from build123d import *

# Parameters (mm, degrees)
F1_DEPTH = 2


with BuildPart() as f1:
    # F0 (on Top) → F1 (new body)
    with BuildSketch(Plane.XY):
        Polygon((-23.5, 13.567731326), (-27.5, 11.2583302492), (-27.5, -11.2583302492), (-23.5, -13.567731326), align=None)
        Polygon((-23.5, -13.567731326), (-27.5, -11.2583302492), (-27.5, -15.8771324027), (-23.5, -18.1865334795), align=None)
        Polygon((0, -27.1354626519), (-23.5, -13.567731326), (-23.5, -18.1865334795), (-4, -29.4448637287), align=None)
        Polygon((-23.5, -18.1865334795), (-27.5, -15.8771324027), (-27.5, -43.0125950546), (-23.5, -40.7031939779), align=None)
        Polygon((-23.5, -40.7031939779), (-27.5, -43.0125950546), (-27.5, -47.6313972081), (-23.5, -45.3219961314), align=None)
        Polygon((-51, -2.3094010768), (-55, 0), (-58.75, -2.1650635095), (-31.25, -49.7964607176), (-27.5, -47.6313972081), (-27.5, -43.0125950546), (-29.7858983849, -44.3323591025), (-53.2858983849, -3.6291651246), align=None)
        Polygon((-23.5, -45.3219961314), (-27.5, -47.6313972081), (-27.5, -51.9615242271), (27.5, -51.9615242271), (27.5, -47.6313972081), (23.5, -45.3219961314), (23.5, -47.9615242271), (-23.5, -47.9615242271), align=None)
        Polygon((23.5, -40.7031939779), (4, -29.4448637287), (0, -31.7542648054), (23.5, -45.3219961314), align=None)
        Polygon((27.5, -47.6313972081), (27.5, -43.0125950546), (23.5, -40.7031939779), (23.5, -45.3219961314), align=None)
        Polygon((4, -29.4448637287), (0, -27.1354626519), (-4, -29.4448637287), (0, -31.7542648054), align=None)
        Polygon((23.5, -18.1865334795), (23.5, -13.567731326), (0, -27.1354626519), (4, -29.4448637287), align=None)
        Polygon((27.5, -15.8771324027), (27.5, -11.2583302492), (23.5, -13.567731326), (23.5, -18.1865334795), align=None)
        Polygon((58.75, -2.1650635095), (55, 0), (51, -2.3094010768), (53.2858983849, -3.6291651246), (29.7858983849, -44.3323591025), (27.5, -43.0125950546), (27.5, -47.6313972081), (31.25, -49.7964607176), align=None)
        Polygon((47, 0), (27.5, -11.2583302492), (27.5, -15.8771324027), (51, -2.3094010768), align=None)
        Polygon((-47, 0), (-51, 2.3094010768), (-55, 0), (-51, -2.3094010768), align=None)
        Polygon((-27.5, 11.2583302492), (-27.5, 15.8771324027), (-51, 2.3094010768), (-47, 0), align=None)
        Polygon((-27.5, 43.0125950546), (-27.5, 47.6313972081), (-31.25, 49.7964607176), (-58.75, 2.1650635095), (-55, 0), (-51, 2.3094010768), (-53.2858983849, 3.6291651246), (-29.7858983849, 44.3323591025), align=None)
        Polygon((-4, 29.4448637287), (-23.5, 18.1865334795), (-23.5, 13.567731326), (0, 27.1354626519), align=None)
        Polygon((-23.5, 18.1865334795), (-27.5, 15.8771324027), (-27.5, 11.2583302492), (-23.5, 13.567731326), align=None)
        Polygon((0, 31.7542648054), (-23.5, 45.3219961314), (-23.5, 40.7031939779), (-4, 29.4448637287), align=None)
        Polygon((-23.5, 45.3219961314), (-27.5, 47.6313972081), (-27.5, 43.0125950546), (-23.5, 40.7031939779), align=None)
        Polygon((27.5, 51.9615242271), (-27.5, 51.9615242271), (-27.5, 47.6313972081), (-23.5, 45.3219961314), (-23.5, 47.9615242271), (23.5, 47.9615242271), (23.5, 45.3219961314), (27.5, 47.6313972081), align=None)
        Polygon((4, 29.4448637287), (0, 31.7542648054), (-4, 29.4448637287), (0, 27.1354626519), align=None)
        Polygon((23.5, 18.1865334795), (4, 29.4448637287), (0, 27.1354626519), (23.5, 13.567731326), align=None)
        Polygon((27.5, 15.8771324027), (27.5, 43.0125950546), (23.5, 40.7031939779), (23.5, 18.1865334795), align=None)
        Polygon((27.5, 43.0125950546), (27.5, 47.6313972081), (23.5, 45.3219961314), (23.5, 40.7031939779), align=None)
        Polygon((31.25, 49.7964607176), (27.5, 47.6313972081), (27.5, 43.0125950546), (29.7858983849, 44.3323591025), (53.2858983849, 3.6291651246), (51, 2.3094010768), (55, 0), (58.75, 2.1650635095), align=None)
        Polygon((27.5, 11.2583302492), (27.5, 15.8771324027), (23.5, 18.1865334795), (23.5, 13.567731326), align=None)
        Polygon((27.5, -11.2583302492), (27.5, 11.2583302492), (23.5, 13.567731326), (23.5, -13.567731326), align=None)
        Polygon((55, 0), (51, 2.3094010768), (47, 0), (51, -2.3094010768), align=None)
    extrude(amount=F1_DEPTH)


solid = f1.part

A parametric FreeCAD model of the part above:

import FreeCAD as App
import Part
import Sketcher

doc = App.newDocument("Part")
body = doc.addObject("PartDesign::Body", "Body")

# Sketch on XY plane
sketch1 = body.newObject("Sketcher::SketchObject", "Sketch")
sketch1.AttachmentSupport = (doc.getObject("XY_Plane"), [""])
sketch1.MapMode = "FlatFace"
sketch1.addGeometry(Part.LineSegment(App.Vector(58.8, -2.2, 0), App.Vector(55, 0, 0)), False)
sketch1.addGeometry(Part.LineSegment(App.Vector(55, 0, 0), App.Vector(58.8, 2.2, 0)), False)
sketch1.addGeometry(Part.LineSegment(App.Vector(58.8, 2.2, 0), App.Vector(31.2, 49.8, 0)), False)
sketch1.addGeometry(Part.LineSegment(App.Vector(31.2, 49.8, 0), App.Vector(27.5, 47.6, 0)), False)
sketch1.addGeometry(Part.LineSegment(App.Vector(27.5, 47.6, 0), App.Vector(27.5, 52, 0)), False)
sketch1.addGeometry(Part.LineSegment(App.Vector(27.5, 52, 0), App.Vector(-27.5, 52, 0)), False)
sketch1.addGeometry(Part.LineSegment(App.Vector(-27.5, 52, 0), App.Vector(-27.5, 47.6, 0)), False)
sketch1.addGeometry(Part.LineSegment(App.Vector(-27.5, 47.6, 0), App.Vector(-31.2, 49.8, 0)), False)
sketch1.addGeometry(Part.LineSegment(App.Vector(-31.2, 49.8, 0), App.Vector(-58.8, 2.2, 0)), False)
sketch1.addGeometry(Part.LineSegment(App.Vector(-58.8, 2.2, 0), App.Vector(-55, 0, 0)), False)
sketch1.addGeometry(Part.LineSegment(App.Vector(-55, 0, 0), App.Vector(-58.8, -2.2, 0)), False)
sketch1.addGeometry(Part.LineSegment(App.Vector(-58.8, -2.2, 0), App.Vector(-31.2, -49.8, 0)), False)
sketch1.addGeometry(Part.LineSegment(App.Vector(-31.2, -49.8, 0), App.Vector(-27.5, -47.6, 0)), False)
sketch1.addGeometry(Part.LineSegment(App.Vector(-27.5, -47.6, 0), App.Vector(-27.5, -52, 0)), False)
sketch1.addGeometry(Part.LineSegment(App.Vector(-27.5, -52, 0), App.Vector(27.5, -52, 0)), False)
sketch1.addGeometry(Part.LineSegment(App.Vector(27.5, -52, 0), App.Vector(27.5, -47.6, 0)), False)
sketch1.addGeometry(Part.LineSegment(App.Vector(27.5, -47.6, 0), App.Vector(31.2, -49.8, 0)), False)
sketch1.addGeometry(Part.LineSegment(App.Vector(31.2, -49.8, 0), App.Vector(58.8, -2.2, 0)), False)
sketch1.addGeometry(Part.LineSegment(App.Vector(0, -31.8, 0), App.Vector(23.5, -45.3, 0)), False)
sketch1.addGeometry(Part.LineSegment(App.Vector(23.5, -45.3, 0), App.Vector(23.5, -48, 0)), False)
sketch1.addGeometry(Part.LineSegment(App.Vector(23.5, -48, 0), App.Vector(-23.5, -48, 0)), False)
sketch1.addGeometry(Part.LineSegment(App.Vector(-23.5, -48, 0), App.Vector(-23.5, -18.2, 0)), False)
sketch1.addGeometry(Part.LineSegment(App.Vector(-23.5, -18.2, 0), App.Vector(-4, -29.4, 0)), False)
sketch1.addGeometry(Part.LineSegment(App.Vector(-4, -29.4, 0), App.Vector(0, -31.8, 0)), False)
sketch1.addGeometry(Part.LineSegment(App.Vector(-47, 0, 0), App.Vector(-27.5, 11.3, 0)), False)
sketch1.addGeometry(Part.LineSegment(App.Vector(-27.5, 11.3, 0), App.Vector(-27.5, -43, 0)), False)
sketch1.addGeometry(Part.LineSegment(App.Vector(-27.5, -43, 0), App.Vector(-29.8, -44.3, 0)), False)
sketch1.addGeometry(Part.LineSegment(App.Vector(-29.8, -44.3, 0), App.Vector(-53.3, -3.6, 0)), False)
sketch1.addGeometry(Part.LineSegment(App.Vector(-53.3, -3.6, 0), App.Vector(-51, -2.3, 0)), False)
sketch1.addGeometry(Part.LineSegment(App.Vector(-51, -2.3, 0), App.Vector(-47, 0, 0)), False)
sketch1.addGeometry(Part.LineSegment(App.Vector(27.5, -15.9, 0), App.Vector(51, -2.3, 0)), False)
sketch1.addGeometry(Part.LineSegment(App.Vector(51, -2.3, 0), App.Vector(53.3, -3.6, 0)), False)
sketch1.addGeometry(Part.LineSegment(App.Vector(53.3, -3.6, 0), App.Vector(29.8, -44.3, 0)), False)
sketch1.addGeometry(Part.LineSegment(App.Vector(29.8, -44.3, 0), App.Vector(27.5, -43, 0)), False)
sketch1.addGeometry(Part.LineSegment(App.Vector(27.5, -43, 0), App.Vector(23.5, -40.7, 0)), False)
sketch1.addGeometry(Part.LineSegment(App.Vector(23.5, -40.7, 0), App.Vector(4, -29.4, 0)), False)
sketch1.addGeometry(Part.LineSegment(App.Vector(4, -29.4, 0), App.Vector(23.5, -18.2, 0)), False)
sketch1.addGeometry(Part.LineSegment(App.Vector(23.5, -18.2, 0), App.Vector(27.5, -15.9, 0)), False)
sketch1.addGeometry(Part.LineSegment(App.Vector(-23.5, 40.7, 0), App.Vector(-4, 29.4, 0)), False)
sketch1.addGeometry(Part.LineSegment(App.Vector(-4, 29.4, 0), App.Vector(-23.5, 18.2, 0)), False)
sketch1.addGeometry(Part.LineSegment(App.Vector(-23.5, 18.2, 0), App.Vector(-27.5, 15.9, 0)), False)
sketch1.addGeometry(Part.LineSegment(App.Vector(-27.5, 15.9, 0), App.Vector(-51, 2.3, 0)), False)
sketch1.addGeometry(Part.LineSegment(App.Vector(-51, 2.3, 0), App.Vector(-53.3, 3.6, 0)), False)
sketch1.addGeometry(Part.LineSegment(App.Vector(-53.3, 3.6, 0), App.Vector(-29.8, 44.3, 0)), False)
sketch1.addGeometry(Part.LineSegment(App.Vector(-29.8, 44.3, 0), App.Vector(-27.5, 43, 0)), False)
sketch1.addGeometry(Part.LineSegment(App.Vector(-27.5, 43, 0), App.Vector(-23.5, 40.7, 0)), False)
sketch1.addGeometry(Part.LineSegment(App.Vector(0, 27.1, 0), App.Vector(23.5, 13.6, 0)), False)
sketch1.addGeometry(Part.LineSegment(App.Vector(23.5, 13.6, 0), App.Vector(23.5, -13.6, 0)), False)
sketch1.addGeometry(Part.LineSegment(App.Vector(23.5, -13.6, 0), App.Vector(0, -27.1, 0)), False)
sketch1.addGeometry(Part.LineSegment(App.Vector(0, -27.1, 0), App.Vector(-23.5, -13.6, 0)), False)
sketch1.addGeometry(Part.LineSegment(App.Vector(-23.5, -13.6, 0), App.Vector(-23.5, 13.6, 0)), False)
sketch1.addGeometry(Part.LineSegment(App.Vector(-23.5, 13.6, 0), App.Vector(0, 27.1, 0)), False)
sketch1.addGeometry(Part.LineSegment(App.Vector(23.5, 48, 0), App.Vector(23.5, 18.2, 0)), False)
sketch1.addGeometry(Part.LineSegment(App.Vector(23.5, 18.2, 0), App.Vector(4, 29.4, 0)), False)
sketch1.addGeometry(Part.LineSegment(App.Vector(4, 29.4, 0), App.Vector(0, 31.8, 0)), False)
sketch1.addGeometry(Part.LineSegment(App.Vector(0, 31.8, 0), App.Vector(-23.5, 45.3, 0)), False)
sketch1.addGeometry(Part.LineSegment(App.Vector(-23.5, 45.3, 0), App.Vector(-23.5, 48, 0)), False)
sketch1.addGeometry(Part.LineSegment(App.Vector(-23.5, 48, 0), App.Vector(23.5, 48, 0)), False)
sketch1.addGeometry(Part.LineSegment(App.Vector(53.3, 3.6, 0), App.Vector(51, 2.3, 0)), False)
sketch1.addGeometry(Part.LineSegment(App.Vector(51, 2.3, 0), App.Vector(47, 0, 0)), False)
sketch1.addGeometry(Part.LineSegment(App.Vector(47, 0, 0), App.Vector(27.5, -11.3, 0)), False)
sketch1.addGeometry(Part.LineSegment(App.Vector(27.5, -11.3, 0), App.Vector(27.5, 43, 0)), False)
sketch1.addGeometry(Part.LineSegment(App.Vector(27.5, 43, 0), App.Vector(29.8, 44.3, 0)), False)
sketch1.addGeometry(Part.LineSegment(App.Vector(29.8, 44.3, 0), App.Vector(53.3, 3.6, 0)), False)
sketch1.addConstraint(Sketcher.Constraint("Coincident", 0, 2, 1, 1))
sketch1.addConstraint(Sketcher.Constraint("Coincident", 1, 2, 2, 1))
sketch1.addConstraint(Sketcher.Constraint("Coincident", 2, 2, 3, 1))
sketch1.addConstraint(Sketcher.Constraint("Coincident", 3, 2, 4, 1))
sketch1.addConstraint(Sketcher.Constraint("Coincident", 4, 2, 5, 1))
sketch1.addConstraint(Sketcher.Constraint("Coincident", 5, 2, 6, 1))
sketch1.addConstraint(Sketcher.Constraint("Coincident", 6, 2, 7, 1))
sketch1.addConstraint(Sketcher.Constraint("Coincident", 7, 2, 8, 1))
sketch1.addConstraint(Sketcher.Constraint("Coincident", 8, 2, 9, 1))
sketch1.addConstraint(Sketcher.Constraint("Coincident", 9, 2, 10, 1))
sketch1.addConstraint(Sketcher.Constraint("Coincident", 10, 2, 11, 1))
sketch1.addConstraint(Sketcher.Constraint("Coincident", 11, 2, 12, 1))
sketch1.addConstraint(Sketcher.Constraint("Coincident", 12, 2, 13, 1))
sketch1.addConstraint(Sketcher.Constraint("Coincident", 13, 2, 14, 1))
sketch1.addConstraint(Sketcher.Constraint("Coincident", 14, 2, 15, 1))
sketch1.addConstraint(Sketcher.Constraint("Coincident", 15, 2, 16, 1))
sketch1.addConstraint(Sketcher.Constraint("Coincident", 16, 2, 17, 1))
sketch1.addConstraint(Sketcher.Constraint("Coincident", 17, 2, 0, 1))
sketch1.addConstraint(Sketcher.Constraint("Coincident", 18, 2, 19, 1))
sketch1.addConstraint(Sketcher.Constraint("Coincident", 19, 2, 20, 1))
sketch1.addConstraint(Sketcher.Constraint("Coincident", 20, 2, 21, 1))
sketch1.addConstraint(Sketcher.Constraint("Coincident", 21, 2, 22, 1))
sketch1.addConstraint(Sketcher.Constraint("Coincident", 22, 2, 23, 1))
sketch1.addConstraint(Sketcher.Constraint("Coincident", 23, 2, 18, 1))
sketch1.addConstraint(Sketcher.Constraint("Coincident", 24, 2, 25, 1))
sketch1.addConstraint(Sketcher.Constraint("Coincident", 25, 2, 26, 1))
sketch1.addConstraint(Sketcher.Constraint("Coincident", 26, 2, 27, 1))
sketch1.addConstraint(Sketcher.Constraint("Coincident", 27, 2, 28, 1))
sketch1.addConstraint(Sketcher.Constraint("Coincident", 28, 2, 29, 1))
sketch1.addConstraint(Sketcher.Constraint("Coincident", 29, 2, 24, 1))
sketch1.addConstraint(Sketcher.Constraint("Coincident", 30, 2, 31, 1))
sketch1.addConstraint(Sketcher.Constraint("Coincident", 31, 2, 32, 1))
sketch1.addConstraint(Sketcher.Constraint("Coincident", 32, 2, 33, 1))
sketch1.addConstraint(Sketcher.Constraint("Coincident", 33, 2, 34, 1))
sketch1.addConstraint(Sketcher.Constraint("Coincident", 34, 2, 35, 1))
sketch1.addConstraint(Sketcher.Constraint("Coincident", 35, 2, 36, 1))
sketch1.addConstraint(Sketcher.Constraint("Coincident", 36, 2, 37, 1))
sketch1.addConstraint(Sketcher.Constraint("Coincident", 37, 2, 30, 1))
sketch1.addConstraint(Sketcher.Constraint("Coincident", 38, 2, 39, 1))
sketch1.addConstraint(Sketcher.Constraint("Coincident", 39, 2, 40, 1))
sketch1.addConstraint(Sketcher.Constraint("Coincident", 40, 2, 41, 1))
sketch1.addConstraint(Sketcher.Constraint("Coincident", 41, 2, 42, 1))
sketch1.addConstraint(Sketcher.Constraint("Coincident", 42, 2, 43, 1))
sketch1.addConstraint(Sketcher.Constraint("Coincident", 43, 2, 44, 1))
sketch1.addConstraint(Sketcher.Constraint("Coincident", 44, 2, 45, 1))
sketch1.addConstraint(Sketcher.Constraint("Coincident", 45, 2, 38, 1))
sketch1.addConstraint(Sketcher.Constraint("Coincident", 46, 2, 47, 1))
sketch1.addConstraint(Sketcher.Constraint("Coincident", 47, 2, 48, 1))
sketch1.addConstraint(Sketcher.Constraint("Coincident", 48, 2, 49, 1))
sketch1.addConstraint(Sketcher.Constraint("Coincident", 49, 2, 50, 1))
sketch1.addConstraint(Sketcher.Constraint("Coincident", 50, 2, 51, 1))
sketch1.addConstraint(Sketcher.Constraint("Coincident", 51, 2, 46, 1))
sketch1.addConstraint(Sketcher.Constraint("Coincident", 52, 2, 53, 1))
sketch1.addConstraint(Sketcher.Constraint("Coincident", 53, 2, 54, 1))
sketch1.addConstraint(Sketcher.Constraint("Coincident", 54, 2, 55, 1))
sketch1.addConstraint(Sketcher.Constraint("Coincident", 55, 2, 56, 1))
sketch1.addConstraint(Sketcher.Constraint("Coincident", 56, 2, 57, 1))
sketch1.addConstraint(Sketcher.Constraint("Coincident", 57, 2, 52, 1))
sketch1.addConstraint(Sketcher.Constraint("Coincident", 58, 2, 59, 1))
sketch1.addConstraint(Sketcher.Constraint("Coincident", 59, 2, 60, 1))
sketch1.addConstraint(Sketcher.Constraint("Coincident", 60, 2, 61, 1))
sketch1.addConstraint(Sketcher.Constraint("Coincident", 61, 2, 62, 1))
sketch1.addConstraint(Sketcher.Constraint("Coincident", 62, 2, 63, 1))
sketch1.addConstraint(Sketcher.Constraint("Coincident", 63, 2, 58, 1))
sketch1.addConstraint(Sketcher.Constraint("Vertical", 4))
sketch1.addConstraint(Sketcher.Constraint("Horizontal", 5))
sketch1.addConstraint(Sketcher.Constraint("Vertical", 6))
sketch1.addConstraint(Sketcher.Constraint("Vertical", 13))
sketch1.addConstraint(Sketcher.Constraint("Horizontal", 14))
sketch1.addConstraint(Sketcher.Constraint("Vertical", 15))
sketch1.addConstraint(Sketcher.Constraint("Vertical", 19))
sketch1.addConstraint(Sketcher.Constraint("Horizontal", 20))
sketch1.addConstraint(Sketcher.Constraint("Vertical", 21))
sketch1.addConstraint(Sketcher.Constraint("Vertical", 25))
sketch1.addConstraint(Sketcher.Constraint("Vertical", 47))
sketch1.addConstraint(Sketcher.Constraint("Vertical", 50))
sketch1.addConstraint(Sketcher.Constraint("Vertical", 52))
sketch1.addConstraint(Sketcher.Constraint("Vertical", 56))
sketch1.addConstraint(Sketcher.Constraint("Horizontal", 57))
sketch1.addConstraint(Sketcher.Constraint("Vertical", 61))
sketch1.addConstraint(Sketcher.Constraint("Symmetric", 0, 2, 9, 2, -1, 1))
sketch1.addConstraint(Sketcher.Constraint("Symmetric", 1, 2, 10, 2, -1, 1))
sketch1.addConstraint(Sketcher.Constraint("Symmetric", 2, 2, 11, 2, -1, 1))
sketch1.addConstraint(Sketcher.Constraint("Symmetric", 3, 2, 12, 2, -1, 1))
sketch1.addConstraint(Sketcher.Constraint("Symmetric", 5, 2, 14, 2, -1, 1))
sketch1.addConstraint(Sketcher.Constraint("Symmetric", 7, 2, 16, 2, -1, 1))
sketch1.addConstraint(Sketcher.Constraint("Symmetric", 8, 2, 17, 2, -1, 1))
sketch1.addConstraint(Sketcher.Constraint("Symmetric", 35, 2, 38, 2, -1, 1))
sketch1.addConstraint(Sketcher.Constraint("Symmetric", 36, 2, 39, 2, -1, 1))
sketch1.addConstraint(Sketcher.Constraint("Symmetric", 37, 2, 40, 2, -1, 1))
sketch1.addConstraint(Sketcher.Constraint("Symmetric", 30, 2, 41, 2, -1, 1))
sketch1.addConstraint(Sketcher.Constraint("Symmetric", 31, 2, 42, 2, -1, 1))
sketch1.addConstraint(Sketcher.Constraint("Symmetric", 32, 2, 43, 2, -1, 1))
sketch1.addConstraint(Sketcher.Constraint("Symmetric", 33, 2, 44, 2, -1, 1))
sketch1.addConstraint(Sketcher.Constraint("Symmetric", 34, 2, 45, 2, -1, 1))
sketch1.addConstraint(Sketcher.Constraint("Symmetric", 46, 2, 49, 2, -1, 1))
sketch1.addConstraint(Sketcher.Constraint("Symmetric", 48, 2, 51, 2, -1, 1))
sketch1.addConstraint(Sketcher.Constraint("Symmetric", 21, 2, 52, 2, -1, 1))
sketch1.addConstraint(Sketcher.Constraint("Symmetric", 22, 2, 53, 2, -1, 1))
sketch1.addConstraint(Sketcher.Constraint("Symmetric", 23, 2, 54, 2, -1, 1))
sketch1.addConstraint(Sketcher.Constraint("Symmetric", 18, 2, 55, 2, -1, 1))
sketch1.addConstraint(Sketcher.Constraint("Symmetric", 28, 2, 58, 2, -1, 1))
sketch1.addConstraint(Sketcher.Constraint("Symmetric", 29, 2, 59, 2, -1, 1))
sketch1.addConstraint(Sketcher.Constraint("Symmetric", 24, 2, 60, 2, -1, 1))
sketch1.addConstraint(Sketcher.Constraint("Symmetric", 26, 2, 62, 2, -1, 1))
sketch1.addConstraint(Sketcher.Constraint("Symmetric", 27, 2, 63, 2, -1, 1))
sketch1.addConstraint(Sketcher.Constraint("Symmetric", 3, 2, 6, 2, -2))
sketch1.addConstraint(Sketcher.Constraint("Symmetric", 2, 2, 7, 2, -2))
sketch1.addConstraint(Sketcher.Constraint("Symmetric", 1, 2, 8, 2, -2))
sketch1.addConstraint(Sketcher.Constraint("Symmetric", 28, 2, 30, 2, -2))
sketch1.addConstraint(Sketcher.Constraint("Symmetric", 27, 2, 31, 2, -2))
sketch1.addConstraint(Sketcher.Constraint("Symmetric", 26, 2, 32, 2, -2))
sketch1.addConstraint(Sketcher.Constraint("Symmetric", 25, 2, 33, 2, -2))
sketch1.addConstraint(Sketcher.Constraint("Symmetric", 22, 2, 35, 2, -2))
sketch1.addConstraint(Sketcher.Constraint("Symmetric", 21, 2, 36, 2, -2))
sketch1.addConstraint(Sketcher.Constraint("Symmetric", 20, 2, 56, 2, -1))
sketch1.addConstraint(Sketcher.Constraint("PointOnObject", 0, 2, -1))
sketch1.addConstraint(Sketcher.Constraint("PointOnObject", 23, 2, -2))
sketch1.addConstraint(Sketcher.Constraint("PointOnObject", 29, 2, -1))
sketch1.addConstraint(Sketcher.Constraint("PointOnObject", 48, 2, -2))
sketch1.addConstraint(Sketcher.Constraint("Perpendicular", 1, 2))
sketch1.addConstraint(Sketcher.Constraint("Perpendicular", 2, 3))
sketch1.addConstraint(Sketcher.Constraint("Parallel", 9, 16))
sketch1.addConstraint(Sketcher.Constraint("Perpendicular", 17, 18))
sketch1.addConstraint(Sketcher.Constraint("Parallel", 18, 22))
sketch1.addConstraint(Sketcher.Constraint("Parallel", 22, 23))
sketch1.addConstraint(Sketcher.Constraint("Parallel", 12, 24))
sketch1.addConstraint(Sketcher.Constraint("Parallel", 24, 26))
sketch1.addConstraint(Sketcher.Constraint("Perpendicular", 26, 27))
sketch1.addConstraint(Sketcher.Constraint("Perpendicular", 27, 28))
sketch1.addConstraint(Sketcher.Constraint("Parallel", 28, 29))
sketch1.addConstraint(Sketcher.Constraint("Parallel", 29, 30))
sketch1.addConstraint(Sketcher.Constraint("Parallel", 33, 34))
sketch1.addConstraint(Sketcher.Constraint("Parallel", 34, 35))
sketch1.addConstraint(Sketcher.Constraint("Parallel", 36, 37))
sketch1.addConstraint(Sketcher.Constraint("Parallel", 45, 46))
sketch1.addConstraint(Sketcher.Constraint("Parallel", 41, 48))
sketch1.addConstraint(Sketcher.Constraint("Parallel", 48, 51))
sketch1.addConstraint(Sketcher.Constraint("Parallel", 60, 62))
sketch1.addConstraint(Sketcher.Constraint("Vertical", 13, 2, 24, 2))
sketch1.addConstraint(Sketcher.Constraint("Vertical", 19, 2, 34, 2))
sketch1.addConstraint(Sketcher.Constraint("Vertical", 33, 2, 37, 2))
sketch1.addConstraint(Sketcher.Constraint("Vertical", 36, 2, 46, 2))
sketch1.addConstraint(Sketcher.Constraint("Equal", 1, 3))
sketch1.addConstraint(Sketcher.Constraint("Equal", 22, 24))
sketch1.addConstraint(Sketcher.Constraint("Equal", 26, 28))
sketch1.addConstraint(Sketcher.Constraint("Equal", 23, 29))
sketch1.addConstraint(Sketcher.Constraint("Equal", 29, 34))
sketch1.addConstraint(Sketcher.Constraint("DistanceX", 5, 2, 5, 1, 55.0))
sketch1.addConstraint(Sketcher.Constraint("DistanceX", 20, 2, 20, 1, 47.0))
sketch1.addConstraint(Sketcher.Constraint("Distance", 2, 55.0))
sketch1.addConstraint(Sketcher.Constraint("DistanceX", -1, 1, 1, 2, 58.75))
sketch1.addConstraint(Sketcher.Constraint("DistanceY", 19, 2, 19, 1, 2.639528))
sketch1.addConstraint(Sketcher.Constraint("DistanceX", 26, 2, -1, 1, 29.785898))
sketch1.addConstraint(Sketcher.Constraint("DistanceY", 4, 1, 4, 2, 4.330127))
sketch1.addConstraint(Sketcher.Constraint("DistanceY", 47, 2, 47, 1, 27.135463))
pad1 = body.newObject("PartDesign::Pad", "Pad")
pad1.Profile = sketch1
pad1.Length = 2

doc.recompute()
